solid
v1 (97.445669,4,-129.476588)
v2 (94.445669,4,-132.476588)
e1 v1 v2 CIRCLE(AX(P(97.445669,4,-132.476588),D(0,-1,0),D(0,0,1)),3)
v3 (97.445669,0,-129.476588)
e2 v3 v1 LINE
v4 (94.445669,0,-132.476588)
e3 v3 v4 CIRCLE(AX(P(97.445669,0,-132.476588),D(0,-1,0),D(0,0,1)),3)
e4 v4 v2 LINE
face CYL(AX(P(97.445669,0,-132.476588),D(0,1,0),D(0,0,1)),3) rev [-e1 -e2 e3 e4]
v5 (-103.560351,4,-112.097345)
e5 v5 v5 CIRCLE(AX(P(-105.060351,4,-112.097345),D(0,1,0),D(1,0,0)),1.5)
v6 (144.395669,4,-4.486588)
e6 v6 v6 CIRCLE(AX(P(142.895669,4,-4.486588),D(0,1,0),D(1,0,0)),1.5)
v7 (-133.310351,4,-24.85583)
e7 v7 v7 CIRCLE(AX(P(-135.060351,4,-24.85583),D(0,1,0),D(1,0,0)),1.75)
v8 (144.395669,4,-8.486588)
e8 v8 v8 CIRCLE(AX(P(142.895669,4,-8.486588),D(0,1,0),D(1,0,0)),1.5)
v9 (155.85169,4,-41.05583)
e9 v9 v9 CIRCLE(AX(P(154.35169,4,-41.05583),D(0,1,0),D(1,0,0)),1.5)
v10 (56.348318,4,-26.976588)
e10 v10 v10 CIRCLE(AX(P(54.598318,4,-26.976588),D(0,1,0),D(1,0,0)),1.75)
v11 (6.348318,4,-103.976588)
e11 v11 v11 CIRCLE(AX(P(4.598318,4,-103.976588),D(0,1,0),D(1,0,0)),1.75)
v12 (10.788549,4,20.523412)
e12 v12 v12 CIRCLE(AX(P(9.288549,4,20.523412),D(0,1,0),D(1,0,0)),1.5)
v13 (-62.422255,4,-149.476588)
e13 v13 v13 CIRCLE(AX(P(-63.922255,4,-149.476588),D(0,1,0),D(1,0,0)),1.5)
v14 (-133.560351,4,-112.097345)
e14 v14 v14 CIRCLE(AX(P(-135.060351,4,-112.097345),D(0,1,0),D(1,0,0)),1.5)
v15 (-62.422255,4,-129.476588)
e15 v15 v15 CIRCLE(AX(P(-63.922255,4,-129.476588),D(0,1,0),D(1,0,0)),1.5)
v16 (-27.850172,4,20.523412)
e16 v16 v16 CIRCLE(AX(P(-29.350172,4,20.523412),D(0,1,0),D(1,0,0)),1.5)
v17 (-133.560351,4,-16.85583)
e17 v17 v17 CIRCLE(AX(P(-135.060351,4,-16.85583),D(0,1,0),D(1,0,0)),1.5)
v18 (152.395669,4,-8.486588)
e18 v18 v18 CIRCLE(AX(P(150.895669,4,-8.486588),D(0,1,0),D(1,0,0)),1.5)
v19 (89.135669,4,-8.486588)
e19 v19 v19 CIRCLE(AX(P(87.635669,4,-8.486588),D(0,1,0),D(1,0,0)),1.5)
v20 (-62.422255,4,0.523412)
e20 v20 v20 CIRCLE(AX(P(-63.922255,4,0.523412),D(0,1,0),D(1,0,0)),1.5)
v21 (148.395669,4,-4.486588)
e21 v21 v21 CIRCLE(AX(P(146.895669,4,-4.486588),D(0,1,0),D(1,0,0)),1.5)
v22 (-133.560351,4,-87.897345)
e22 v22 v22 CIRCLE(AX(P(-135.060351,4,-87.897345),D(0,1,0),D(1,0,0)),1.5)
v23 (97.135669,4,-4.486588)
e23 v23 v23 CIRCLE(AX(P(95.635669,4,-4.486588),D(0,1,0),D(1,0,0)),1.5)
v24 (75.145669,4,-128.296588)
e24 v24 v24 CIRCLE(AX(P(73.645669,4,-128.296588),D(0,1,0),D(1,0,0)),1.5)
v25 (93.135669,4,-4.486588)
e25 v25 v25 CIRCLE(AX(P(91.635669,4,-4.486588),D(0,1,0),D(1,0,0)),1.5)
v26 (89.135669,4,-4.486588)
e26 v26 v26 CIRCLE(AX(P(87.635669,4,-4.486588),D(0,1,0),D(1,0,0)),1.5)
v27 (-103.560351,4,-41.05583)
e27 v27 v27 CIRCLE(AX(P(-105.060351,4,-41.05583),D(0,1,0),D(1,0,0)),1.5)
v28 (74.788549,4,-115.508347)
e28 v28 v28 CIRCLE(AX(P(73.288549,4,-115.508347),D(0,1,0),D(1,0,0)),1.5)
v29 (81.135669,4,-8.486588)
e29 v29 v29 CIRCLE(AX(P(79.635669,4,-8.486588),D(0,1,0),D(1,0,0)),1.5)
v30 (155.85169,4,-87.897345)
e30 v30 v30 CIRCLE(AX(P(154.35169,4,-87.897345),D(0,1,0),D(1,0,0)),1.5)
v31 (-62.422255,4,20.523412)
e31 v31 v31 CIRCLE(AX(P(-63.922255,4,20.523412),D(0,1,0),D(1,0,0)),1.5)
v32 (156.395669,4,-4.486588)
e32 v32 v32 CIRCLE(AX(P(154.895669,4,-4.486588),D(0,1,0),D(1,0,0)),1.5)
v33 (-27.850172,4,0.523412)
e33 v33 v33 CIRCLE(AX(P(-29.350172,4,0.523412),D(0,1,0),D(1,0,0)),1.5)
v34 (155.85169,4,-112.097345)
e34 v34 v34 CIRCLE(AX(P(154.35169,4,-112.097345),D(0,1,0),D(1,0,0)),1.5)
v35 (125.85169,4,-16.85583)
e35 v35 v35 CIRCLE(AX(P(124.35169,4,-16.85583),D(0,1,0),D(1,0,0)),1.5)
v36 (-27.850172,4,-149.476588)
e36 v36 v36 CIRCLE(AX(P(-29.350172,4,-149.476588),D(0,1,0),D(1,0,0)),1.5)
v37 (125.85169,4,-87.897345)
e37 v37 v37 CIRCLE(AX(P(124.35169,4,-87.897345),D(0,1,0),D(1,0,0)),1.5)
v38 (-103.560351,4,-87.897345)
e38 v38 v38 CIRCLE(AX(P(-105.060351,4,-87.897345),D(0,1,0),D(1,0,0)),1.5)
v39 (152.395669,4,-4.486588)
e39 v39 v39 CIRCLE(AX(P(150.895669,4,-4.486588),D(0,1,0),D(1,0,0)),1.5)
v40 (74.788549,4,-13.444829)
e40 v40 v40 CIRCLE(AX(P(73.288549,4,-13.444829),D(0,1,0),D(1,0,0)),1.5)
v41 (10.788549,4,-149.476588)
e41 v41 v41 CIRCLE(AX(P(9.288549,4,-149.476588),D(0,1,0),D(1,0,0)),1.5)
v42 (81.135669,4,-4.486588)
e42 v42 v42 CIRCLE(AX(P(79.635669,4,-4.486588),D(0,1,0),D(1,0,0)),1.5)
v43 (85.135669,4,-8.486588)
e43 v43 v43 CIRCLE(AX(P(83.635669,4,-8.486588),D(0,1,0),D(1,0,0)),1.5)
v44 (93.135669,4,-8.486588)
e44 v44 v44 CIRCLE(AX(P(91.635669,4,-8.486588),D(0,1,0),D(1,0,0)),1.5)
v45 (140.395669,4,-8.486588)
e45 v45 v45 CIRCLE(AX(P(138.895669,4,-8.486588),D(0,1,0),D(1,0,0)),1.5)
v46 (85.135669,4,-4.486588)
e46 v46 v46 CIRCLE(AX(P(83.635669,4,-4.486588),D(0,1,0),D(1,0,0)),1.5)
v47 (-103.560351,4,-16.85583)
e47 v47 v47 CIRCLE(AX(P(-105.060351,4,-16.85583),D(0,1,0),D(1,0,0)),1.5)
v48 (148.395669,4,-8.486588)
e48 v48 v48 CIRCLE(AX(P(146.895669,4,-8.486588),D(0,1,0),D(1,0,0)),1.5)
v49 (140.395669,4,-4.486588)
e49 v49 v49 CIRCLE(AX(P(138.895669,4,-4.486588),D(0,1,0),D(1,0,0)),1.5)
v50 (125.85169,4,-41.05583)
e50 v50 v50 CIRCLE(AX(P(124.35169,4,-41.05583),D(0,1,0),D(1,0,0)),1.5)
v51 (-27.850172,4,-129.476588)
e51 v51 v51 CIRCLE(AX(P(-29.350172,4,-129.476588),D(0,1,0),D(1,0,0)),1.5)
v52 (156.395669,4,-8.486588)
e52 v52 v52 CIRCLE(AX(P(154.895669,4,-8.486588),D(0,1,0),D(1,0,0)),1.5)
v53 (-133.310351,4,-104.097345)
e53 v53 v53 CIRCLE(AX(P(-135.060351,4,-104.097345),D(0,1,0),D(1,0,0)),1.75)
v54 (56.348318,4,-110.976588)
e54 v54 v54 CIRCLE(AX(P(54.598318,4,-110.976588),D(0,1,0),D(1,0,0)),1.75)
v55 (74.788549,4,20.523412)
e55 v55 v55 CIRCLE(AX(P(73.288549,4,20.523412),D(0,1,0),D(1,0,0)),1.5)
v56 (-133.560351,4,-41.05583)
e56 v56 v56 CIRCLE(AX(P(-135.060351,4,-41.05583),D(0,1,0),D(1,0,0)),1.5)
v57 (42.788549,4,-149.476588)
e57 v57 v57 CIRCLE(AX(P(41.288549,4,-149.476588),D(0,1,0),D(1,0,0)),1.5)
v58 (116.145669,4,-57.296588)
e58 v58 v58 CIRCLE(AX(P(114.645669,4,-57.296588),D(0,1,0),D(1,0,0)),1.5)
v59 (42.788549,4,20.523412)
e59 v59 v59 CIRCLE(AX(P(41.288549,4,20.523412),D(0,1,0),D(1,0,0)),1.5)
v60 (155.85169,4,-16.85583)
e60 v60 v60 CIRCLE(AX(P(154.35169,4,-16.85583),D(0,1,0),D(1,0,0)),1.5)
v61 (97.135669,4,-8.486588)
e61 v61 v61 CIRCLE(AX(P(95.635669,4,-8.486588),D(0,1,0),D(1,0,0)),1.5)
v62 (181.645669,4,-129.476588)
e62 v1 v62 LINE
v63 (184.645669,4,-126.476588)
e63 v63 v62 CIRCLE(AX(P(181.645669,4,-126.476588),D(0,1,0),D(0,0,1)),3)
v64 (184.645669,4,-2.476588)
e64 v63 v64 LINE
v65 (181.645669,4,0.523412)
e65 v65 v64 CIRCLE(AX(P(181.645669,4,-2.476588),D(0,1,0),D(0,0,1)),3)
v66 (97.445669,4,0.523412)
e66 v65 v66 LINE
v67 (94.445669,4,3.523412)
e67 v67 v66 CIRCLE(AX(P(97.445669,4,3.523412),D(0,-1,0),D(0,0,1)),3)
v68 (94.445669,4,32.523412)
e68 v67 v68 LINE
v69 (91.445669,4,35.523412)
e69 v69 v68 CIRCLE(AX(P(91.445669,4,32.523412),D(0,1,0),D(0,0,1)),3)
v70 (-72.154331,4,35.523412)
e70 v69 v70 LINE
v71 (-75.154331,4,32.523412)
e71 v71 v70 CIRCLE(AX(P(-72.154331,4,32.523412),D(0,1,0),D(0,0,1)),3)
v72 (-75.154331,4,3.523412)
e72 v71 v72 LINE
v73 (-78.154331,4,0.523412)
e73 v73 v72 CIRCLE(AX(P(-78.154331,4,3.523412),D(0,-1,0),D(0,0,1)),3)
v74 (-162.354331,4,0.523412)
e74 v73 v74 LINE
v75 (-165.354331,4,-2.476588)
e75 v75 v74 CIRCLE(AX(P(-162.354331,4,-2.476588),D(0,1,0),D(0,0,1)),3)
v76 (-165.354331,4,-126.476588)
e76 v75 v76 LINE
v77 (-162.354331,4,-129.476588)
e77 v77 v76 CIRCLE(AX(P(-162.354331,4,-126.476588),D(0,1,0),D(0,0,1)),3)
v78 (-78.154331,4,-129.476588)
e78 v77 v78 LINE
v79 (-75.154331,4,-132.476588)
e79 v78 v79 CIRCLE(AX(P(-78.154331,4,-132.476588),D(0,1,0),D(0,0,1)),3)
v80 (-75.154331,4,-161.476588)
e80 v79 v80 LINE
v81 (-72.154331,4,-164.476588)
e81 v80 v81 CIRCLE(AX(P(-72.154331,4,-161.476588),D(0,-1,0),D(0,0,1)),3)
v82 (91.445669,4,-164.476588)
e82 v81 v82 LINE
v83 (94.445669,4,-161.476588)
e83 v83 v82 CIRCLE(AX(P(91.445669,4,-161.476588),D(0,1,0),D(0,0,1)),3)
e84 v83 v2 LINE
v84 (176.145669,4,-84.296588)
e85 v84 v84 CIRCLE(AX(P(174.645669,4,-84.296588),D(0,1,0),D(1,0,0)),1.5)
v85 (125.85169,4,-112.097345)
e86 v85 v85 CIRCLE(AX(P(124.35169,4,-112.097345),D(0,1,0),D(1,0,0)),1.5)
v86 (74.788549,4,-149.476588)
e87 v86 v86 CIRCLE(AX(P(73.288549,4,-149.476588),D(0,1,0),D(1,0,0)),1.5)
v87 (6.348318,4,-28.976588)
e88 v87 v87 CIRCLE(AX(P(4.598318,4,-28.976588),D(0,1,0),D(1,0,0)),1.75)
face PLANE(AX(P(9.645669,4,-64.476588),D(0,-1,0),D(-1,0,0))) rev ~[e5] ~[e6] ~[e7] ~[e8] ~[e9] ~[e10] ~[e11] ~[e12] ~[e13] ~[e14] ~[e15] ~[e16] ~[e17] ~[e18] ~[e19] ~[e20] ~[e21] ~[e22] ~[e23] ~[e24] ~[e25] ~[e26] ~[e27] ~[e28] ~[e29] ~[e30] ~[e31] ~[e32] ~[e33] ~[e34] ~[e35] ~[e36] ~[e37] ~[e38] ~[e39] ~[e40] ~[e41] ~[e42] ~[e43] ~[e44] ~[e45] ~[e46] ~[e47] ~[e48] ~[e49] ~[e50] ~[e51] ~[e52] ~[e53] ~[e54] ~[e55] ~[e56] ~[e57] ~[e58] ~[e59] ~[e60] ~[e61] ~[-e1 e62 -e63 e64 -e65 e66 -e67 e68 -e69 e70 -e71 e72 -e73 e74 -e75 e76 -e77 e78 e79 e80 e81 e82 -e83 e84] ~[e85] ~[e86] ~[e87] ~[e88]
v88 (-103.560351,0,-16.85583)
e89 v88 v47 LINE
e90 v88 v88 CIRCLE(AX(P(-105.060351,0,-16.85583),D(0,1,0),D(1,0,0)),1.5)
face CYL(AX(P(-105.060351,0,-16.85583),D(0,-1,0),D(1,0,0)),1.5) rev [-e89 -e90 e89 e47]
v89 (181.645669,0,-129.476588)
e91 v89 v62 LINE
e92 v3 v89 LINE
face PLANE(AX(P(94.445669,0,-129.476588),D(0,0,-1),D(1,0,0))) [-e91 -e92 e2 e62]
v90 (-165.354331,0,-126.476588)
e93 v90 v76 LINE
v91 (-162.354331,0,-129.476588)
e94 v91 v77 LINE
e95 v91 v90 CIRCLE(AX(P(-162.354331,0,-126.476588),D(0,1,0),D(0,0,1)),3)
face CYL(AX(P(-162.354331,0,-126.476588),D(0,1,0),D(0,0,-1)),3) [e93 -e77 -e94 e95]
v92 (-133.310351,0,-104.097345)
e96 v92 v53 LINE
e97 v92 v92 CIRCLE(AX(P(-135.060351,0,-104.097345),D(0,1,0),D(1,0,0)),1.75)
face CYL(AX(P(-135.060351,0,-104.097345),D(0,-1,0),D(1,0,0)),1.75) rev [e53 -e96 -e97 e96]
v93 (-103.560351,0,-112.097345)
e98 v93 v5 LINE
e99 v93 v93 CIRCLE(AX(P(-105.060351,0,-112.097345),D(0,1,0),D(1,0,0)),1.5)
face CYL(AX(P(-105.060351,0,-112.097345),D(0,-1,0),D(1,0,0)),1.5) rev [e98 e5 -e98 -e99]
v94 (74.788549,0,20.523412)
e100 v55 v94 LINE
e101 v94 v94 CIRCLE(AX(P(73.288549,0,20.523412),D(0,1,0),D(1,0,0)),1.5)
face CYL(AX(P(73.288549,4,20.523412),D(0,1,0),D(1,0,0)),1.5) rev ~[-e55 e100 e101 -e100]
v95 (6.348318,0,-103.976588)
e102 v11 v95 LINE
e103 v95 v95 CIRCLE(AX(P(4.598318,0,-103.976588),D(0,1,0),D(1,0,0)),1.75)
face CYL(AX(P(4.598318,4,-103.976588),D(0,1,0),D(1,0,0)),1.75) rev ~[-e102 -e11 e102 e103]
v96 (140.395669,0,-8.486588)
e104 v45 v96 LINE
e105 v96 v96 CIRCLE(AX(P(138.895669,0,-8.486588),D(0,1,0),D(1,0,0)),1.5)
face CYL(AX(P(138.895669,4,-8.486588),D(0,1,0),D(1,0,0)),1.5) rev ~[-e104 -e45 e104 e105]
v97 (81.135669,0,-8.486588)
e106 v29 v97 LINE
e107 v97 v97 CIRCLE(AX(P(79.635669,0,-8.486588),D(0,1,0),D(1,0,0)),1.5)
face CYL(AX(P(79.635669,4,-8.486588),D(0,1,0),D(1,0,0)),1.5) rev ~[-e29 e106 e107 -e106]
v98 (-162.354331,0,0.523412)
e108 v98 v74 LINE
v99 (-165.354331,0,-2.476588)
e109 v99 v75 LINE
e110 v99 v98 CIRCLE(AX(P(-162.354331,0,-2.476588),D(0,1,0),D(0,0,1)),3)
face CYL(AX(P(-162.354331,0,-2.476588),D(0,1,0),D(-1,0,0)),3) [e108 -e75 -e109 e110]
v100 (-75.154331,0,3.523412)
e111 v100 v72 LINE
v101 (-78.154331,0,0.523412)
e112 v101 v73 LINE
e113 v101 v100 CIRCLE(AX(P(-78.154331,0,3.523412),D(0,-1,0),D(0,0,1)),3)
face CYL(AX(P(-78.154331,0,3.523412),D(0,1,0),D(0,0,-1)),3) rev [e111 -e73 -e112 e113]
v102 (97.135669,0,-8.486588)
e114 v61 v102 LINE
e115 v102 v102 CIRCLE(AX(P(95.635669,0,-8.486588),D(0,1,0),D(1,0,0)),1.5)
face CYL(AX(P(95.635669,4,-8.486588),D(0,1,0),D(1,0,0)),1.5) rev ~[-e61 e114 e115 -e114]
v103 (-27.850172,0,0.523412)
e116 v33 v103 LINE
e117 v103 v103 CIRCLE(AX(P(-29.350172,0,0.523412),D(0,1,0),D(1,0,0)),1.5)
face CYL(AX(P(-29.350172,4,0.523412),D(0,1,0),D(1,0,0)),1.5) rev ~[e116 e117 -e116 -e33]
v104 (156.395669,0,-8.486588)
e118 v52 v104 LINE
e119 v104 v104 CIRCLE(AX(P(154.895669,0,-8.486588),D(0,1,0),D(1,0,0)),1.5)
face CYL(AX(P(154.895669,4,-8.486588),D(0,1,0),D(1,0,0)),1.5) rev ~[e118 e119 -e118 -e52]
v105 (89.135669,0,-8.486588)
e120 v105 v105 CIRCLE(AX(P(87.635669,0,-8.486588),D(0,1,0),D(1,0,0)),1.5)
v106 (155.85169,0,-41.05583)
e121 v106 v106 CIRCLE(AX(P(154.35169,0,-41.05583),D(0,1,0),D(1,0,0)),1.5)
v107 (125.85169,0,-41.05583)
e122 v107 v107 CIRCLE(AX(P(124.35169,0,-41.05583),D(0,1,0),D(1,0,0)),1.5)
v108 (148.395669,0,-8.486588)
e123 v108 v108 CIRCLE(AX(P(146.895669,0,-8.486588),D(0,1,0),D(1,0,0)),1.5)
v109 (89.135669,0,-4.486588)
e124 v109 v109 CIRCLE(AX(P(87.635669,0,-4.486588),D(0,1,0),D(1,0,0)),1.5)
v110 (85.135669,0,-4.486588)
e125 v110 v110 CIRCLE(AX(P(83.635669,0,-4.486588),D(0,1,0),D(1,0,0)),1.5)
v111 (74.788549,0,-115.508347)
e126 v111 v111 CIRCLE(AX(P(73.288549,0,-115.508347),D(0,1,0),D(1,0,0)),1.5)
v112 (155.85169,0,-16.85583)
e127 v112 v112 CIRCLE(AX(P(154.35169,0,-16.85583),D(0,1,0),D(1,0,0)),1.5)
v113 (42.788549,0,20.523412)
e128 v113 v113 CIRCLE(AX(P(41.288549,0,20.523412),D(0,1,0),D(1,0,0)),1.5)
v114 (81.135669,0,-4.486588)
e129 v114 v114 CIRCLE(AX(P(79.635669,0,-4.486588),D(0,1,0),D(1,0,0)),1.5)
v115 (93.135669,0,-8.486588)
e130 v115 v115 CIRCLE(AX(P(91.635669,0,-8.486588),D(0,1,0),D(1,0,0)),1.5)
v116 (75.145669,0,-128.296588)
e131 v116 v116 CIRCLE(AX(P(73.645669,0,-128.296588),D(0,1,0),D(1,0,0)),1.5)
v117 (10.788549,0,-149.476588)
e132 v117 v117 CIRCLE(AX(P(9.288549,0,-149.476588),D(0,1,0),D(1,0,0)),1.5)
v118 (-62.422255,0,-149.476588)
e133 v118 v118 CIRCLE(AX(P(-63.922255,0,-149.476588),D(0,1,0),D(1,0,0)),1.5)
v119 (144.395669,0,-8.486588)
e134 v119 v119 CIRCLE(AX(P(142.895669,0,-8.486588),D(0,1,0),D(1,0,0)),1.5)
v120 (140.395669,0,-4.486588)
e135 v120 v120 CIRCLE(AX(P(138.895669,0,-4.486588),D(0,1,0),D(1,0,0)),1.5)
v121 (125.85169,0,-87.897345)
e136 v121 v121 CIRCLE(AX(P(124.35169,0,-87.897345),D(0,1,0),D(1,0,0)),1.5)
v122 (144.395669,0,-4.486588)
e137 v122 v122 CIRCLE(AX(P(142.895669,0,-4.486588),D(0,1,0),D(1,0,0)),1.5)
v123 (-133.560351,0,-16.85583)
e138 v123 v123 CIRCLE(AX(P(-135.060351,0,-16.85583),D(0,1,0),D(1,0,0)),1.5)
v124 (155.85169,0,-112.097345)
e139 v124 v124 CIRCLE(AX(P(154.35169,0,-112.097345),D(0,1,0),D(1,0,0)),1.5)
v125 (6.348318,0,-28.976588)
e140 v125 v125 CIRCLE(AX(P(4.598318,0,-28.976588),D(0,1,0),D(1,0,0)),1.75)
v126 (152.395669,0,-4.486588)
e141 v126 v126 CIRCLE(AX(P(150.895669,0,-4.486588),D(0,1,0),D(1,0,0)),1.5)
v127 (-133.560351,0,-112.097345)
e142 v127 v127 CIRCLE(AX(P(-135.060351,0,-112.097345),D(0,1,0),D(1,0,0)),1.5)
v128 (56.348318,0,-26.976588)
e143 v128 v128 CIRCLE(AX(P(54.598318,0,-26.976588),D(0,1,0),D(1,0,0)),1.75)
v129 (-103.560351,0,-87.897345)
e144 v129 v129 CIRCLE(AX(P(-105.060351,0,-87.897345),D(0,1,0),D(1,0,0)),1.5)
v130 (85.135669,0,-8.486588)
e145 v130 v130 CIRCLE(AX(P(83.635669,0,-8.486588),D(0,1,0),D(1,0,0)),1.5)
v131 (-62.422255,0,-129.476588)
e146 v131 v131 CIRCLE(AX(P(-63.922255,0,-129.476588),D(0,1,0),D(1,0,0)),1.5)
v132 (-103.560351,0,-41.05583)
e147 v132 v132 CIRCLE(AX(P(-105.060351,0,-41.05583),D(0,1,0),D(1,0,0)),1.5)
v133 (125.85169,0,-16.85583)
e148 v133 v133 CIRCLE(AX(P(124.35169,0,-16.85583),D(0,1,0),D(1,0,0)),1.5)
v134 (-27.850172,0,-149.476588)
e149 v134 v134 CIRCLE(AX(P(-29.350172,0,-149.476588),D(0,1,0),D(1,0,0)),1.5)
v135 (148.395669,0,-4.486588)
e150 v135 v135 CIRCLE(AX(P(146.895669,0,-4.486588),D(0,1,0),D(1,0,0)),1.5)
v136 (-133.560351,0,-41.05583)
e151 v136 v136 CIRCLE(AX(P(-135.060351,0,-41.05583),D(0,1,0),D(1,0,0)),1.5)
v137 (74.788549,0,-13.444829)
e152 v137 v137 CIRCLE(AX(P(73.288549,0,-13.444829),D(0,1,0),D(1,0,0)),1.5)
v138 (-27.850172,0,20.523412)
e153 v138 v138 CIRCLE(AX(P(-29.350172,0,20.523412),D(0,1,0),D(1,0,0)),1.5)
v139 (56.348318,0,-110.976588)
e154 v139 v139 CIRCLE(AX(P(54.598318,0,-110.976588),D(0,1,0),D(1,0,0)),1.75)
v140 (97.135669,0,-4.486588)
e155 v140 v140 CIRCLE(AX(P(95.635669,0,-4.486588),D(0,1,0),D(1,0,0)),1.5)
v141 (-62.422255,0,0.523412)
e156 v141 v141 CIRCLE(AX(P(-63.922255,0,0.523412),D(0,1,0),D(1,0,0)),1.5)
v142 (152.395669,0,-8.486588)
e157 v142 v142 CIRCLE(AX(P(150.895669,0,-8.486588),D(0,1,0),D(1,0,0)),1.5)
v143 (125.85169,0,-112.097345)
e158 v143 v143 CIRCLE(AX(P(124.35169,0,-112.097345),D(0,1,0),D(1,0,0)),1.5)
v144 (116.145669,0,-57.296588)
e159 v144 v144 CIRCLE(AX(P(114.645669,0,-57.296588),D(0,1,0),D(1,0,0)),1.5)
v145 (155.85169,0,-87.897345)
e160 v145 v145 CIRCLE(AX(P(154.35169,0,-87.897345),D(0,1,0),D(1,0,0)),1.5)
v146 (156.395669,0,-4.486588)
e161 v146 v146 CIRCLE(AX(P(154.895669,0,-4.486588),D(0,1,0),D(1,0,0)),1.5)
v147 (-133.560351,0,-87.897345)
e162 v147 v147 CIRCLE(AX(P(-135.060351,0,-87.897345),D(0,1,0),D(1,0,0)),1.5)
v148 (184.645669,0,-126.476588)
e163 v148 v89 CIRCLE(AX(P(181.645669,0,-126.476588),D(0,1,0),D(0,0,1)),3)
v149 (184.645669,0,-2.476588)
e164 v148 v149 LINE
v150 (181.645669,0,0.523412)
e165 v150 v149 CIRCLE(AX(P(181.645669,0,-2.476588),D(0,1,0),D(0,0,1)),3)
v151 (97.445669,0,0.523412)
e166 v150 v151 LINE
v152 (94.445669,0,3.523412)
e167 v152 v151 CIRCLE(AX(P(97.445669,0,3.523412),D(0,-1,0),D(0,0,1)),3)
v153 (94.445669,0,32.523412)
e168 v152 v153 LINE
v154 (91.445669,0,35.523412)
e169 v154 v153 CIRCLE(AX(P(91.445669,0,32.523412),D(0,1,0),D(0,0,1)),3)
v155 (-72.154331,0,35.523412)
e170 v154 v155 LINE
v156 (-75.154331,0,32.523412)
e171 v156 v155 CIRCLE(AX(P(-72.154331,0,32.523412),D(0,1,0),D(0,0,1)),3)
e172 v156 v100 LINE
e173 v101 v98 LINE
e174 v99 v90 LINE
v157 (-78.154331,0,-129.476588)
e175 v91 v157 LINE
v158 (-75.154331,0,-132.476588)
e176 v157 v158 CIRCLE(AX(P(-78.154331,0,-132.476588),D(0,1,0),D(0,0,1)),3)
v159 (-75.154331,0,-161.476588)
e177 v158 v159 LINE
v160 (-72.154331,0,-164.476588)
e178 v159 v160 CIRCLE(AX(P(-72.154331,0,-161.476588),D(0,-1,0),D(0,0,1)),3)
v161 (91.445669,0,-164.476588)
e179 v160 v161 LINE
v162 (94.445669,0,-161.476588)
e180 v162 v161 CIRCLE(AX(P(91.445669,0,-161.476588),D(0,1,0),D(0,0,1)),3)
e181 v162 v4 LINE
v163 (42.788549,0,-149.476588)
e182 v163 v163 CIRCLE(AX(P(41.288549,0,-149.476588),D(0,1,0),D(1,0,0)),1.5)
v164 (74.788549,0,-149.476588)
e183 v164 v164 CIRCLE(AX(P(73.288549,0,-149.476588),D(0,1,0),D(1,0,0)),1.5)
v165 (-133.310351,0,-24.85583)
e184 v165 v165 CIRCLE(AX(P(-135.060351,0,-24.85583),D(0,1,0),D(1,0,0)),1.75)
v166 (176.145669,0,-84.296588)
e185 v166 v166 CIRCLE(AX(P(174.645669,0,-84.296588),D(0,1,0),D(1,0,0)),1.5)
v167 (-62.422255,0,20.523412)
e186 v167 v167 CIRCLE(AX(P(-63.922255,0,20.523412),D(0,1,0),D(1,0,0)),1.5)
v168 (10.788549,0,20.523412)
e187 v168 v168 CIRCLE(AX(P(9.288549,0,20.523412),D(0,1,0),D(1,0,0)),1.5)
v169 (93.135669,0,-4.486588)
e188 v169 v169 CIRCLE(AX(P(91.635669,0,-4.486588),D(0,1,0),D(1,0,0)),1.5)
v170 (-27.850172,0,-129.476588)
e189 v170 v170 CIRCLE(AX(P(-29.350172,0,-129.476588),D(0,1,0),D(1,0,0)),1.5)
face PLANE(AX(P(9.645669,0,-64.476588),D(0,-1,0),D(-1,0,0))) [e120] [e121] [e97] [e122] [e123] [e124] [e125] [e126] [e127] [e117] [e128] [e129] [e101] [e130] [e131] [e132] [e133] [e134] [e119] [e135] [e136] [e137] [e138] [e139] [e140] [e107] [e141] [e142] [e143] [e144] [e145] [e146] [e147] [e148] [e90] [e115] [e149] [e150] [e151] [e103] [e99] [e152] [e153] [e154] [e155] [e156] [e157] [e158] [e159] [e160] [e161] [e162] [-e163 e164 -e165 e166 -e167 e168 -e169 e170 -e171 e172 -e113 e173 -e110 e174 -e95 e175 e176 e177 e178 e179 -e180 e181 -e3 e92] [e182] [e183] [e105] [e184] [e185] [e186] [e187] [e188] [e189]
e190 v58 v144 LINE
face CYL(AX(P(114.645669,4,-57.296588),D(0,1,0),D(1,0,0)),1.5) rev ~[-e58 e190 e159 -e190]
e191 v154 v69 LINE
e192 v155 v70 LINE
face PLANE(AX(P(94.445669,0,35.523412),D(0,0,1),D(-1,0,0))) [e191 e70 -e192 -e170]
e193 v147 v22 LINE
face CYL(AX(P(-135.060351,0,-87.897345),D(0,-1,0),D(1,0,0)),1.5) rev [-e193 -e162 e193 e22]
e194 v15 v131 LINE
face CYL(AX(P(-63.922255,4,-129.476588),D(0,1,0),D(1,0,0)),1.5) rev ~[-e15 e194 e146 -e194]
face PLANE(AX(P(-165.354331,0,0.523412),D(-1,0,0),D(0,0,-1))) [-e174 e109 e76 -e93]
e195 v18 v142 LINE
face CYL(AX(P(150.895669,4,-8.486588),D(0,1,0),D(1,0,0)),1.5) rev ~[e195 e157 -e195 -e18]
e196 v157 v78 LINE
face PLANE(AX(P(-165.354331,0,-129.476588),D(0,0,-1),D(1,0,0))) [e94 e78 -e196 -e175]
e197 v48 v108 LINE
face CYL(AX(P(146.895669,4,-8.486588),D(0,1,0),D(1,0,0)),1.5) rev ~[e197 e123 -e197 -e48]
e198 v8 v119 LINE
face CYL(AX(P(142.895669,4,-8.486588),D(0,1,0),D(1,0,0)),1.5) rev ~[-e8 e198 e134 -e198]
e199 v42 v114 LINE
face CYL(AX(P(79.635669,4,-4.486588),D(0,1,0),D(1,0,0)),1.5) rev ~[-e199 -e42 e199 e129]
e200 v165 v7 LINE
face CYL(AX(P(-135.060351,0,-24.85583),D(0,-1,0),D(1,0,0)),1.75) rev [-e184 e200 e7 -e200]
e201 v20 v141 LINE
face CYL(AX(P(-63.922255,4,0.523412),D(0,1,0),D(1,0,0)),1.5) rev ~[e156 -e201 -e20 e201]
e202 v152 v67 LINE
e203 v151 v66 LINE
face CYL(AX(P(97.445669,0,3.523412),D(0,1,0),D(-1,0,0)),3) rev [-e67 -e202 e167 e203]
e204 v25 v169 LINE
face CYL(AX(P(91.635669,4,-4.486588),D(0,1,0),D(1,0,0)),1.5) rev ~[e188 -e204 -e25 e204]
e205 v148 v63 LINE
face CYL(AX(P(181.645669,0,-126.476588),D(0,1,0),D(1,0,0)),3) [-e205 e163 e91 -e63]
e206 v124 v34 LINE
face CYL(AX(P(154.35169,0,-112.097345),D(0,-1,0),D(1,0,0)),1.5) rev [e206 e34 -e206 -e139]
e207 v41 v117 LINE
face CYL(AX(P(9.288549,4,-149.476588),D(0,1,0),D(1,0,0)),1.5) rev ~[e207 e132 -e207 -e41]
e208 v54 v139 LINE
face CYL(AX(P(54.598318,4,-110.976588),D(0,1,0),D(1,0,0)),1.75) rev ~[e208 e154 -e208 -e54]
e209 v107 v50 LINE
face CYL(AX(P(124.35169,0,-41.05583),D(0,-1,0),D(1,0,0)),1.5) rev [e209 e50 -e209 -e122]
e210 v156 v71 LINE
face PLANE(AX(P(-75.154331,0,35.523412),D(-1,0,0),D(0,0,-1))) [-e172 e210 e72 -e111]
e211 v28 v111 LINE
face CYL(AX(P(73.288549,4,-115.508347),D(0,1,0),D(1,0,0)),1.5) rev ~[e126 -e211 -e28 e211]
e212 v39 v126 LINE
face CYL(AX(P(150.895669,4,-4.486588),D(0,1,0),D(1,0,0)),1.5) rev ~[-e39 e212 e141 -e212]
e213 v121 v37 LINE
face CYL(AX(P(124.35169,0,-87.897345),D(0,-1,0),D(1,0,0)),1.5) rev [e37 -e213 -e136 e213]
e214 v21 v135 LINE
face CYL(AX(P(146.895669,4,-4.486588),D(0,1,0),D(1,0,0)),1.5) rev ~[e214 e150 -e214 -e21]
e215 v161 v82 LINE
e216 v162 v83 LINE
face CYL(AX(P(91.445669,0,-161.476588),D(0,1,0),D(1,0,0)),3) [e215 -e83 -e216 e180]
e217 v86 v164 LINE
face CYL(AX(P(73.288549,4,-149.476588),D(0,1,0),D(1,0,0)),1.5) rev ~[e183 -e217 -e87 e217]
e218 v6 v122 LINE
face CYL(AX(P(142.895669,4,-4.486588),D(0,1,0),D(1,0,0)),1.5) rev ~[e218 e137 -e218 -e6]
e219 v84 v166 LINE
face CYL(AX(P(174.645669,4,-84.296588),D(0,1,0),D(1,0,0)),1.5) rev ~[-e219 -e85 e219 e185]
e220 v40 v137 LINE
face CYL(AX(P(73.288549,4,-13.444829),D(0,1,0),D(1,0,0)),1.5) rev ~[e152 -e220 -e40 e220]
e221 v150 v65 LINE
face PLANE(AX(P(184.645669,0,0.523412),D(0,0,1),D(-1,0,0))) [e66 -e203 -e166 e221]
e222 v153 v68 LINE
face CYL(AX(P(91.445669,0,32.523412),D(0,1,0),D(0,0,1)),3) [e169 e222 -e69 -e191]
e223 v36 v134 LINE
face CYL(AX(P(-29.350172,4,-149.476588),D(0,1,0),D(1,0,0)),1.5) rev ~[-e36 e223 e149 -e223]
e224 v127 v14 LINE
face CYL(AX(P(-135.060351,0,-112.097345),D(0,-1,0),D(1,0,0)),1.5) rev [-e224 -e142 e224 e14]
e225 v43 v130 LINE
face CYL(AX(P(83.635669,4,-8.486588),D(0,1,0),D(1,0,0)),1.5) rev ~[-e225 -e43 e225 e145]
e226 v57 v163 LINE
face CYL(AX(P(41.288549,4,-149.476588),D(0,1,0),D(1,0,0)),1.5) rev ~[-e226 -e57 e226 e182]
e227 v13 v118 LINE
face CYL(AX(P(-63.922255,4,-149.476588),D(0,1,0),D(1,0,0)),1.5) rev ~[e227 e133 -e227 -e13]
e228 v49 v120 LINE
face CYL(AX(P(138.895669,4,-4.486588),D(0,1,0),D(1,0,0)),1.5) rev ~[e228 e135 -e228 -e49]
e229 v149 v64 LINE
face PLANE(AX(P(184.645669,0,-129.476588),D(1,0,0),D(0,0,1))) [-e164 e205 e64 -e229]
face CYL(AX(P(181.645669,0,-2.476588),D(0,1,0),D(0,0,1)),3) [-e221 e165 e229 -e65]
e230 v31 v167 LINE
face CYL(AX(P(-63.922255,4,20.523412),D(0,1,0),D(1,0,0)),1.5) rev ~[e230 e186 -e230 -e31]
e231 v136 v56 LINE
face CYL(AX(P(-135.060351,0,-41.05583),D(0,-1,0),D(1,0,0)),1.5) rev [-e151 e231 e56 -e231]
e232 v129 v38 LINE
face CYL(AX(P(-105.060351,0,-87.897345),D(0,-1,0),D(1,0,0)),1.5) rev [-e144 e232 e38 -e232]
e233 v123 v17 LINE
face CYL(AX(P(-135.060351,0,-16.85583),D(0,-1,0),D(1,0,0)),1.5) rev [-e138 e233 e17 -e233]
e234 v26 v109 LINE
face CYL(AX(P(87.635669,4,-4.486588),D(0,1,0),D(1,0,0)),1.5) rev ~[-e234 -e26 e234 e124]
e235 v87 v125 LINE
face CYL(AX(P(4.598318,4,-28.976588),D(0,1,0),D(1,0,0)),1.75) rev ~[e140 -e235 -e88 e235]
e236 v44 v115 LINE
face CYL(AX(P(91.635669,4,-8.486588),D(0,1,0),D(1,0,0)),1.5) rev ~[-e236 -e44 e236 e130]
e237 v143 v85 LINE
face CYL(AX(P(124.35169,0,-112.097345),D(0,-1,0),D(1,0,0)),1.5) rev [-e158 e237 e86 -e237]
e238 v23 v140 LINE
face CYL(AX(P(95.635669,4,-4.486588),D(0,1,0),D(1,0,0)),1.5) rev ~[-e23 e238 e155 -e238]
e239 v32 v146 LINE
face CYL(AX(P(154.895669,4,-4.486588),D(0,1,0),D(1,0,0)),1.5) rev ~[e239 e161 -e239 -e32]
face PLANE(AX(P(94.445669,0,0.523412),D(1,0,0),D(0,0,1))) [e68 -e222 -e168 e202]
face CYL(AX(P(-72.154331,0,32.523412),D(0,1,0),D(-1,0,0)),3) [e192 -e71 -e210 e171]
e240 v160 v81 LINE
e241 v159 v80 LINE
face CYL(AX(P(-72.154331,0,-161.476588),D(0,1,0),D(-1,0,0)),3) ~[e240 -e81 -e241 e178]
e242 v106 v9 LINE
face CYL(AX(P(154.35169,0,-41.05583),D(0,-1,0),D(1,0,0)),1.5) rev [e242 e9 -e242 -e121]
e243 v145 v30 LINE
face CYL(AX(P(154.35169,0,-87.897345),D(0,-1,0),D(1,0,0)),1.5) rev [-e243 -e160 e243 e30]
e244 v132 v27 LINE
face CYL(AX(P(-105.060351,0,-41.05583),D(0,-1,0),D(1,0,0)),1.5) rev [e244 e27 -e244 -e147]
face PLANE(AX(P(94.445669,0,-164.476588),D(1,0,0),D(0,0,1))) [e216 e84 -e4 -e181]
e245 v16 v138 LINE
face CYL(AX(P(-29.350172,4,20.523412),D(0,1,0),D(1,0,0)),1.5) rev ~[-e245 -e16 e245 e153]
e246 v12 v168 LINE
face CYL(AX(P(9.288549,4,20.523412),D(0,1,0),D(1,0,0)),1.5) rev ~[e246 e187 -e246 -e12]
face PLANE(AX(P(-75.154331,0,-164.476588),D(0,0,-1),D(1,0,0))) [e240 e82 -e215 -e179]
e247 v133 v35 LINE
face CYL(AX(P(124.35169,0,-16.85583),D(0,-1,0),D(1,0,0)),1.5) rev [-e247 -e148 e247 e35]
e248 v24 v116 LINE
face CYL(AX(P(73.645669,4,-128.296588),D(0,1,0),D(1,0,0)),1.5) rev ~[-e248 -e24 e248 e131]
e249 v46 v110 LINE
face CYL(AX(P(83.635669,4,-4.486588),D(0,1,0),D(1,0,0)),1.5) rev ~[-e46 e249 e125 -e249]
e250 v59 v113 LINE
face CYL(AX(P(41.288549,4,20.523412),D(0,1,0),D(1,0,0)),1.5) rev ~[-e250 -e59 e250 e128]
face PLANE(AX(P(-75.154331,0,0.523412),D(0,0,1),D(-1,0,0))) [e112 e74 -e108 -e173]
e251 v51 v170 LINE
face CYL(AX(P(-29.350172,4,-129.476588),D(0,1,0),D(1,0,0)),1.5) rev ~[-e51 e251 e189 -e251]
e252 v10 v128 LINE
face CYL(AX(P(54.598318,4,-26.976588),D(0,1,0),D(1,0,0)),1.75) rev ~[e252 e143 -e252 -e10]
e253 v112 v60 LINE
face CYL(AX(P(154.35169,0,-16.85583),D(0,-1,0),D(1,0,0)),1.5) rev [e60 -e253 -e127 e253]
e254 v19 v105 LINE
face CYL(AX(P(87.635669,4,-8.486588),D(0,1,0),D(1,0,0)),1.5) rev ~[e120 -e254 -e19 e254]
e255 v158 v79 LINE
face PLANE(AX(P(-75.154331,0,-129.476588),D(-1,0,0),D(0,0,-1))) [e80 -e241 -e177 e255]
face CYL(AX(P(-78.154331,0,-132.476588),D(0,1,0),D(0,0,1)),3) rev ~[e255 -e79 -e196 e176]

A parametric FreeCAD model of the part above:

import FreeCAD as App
import Part
import Sketcher

V = App.Vector


def edges_at(feature, points):
    """Names of the edges that pass closest to the given points."""
    edges = feature.Shape.Edges
    near = lambda p: min(range(len(edges)), key=lambda i: edges[i].distToShape(Part.Vertex(*p))[0])
    return sorted({f"Edge{near(p) + 1}" for p in points})


def add_polygon(sketch, points):
    """Adds a closed chain of lines whose ends are joined by coincident constraints."""
    first, n = sketch.GeometryCount, len(points)
    for a, b in zip(points, points[1:] + points[:1]):
        sketch.addGeometry(Part.LineSegment(App.Vector(*a, 0), App.Vector(*b, 0)), False)
    for i in range(n):
        sketch.addConstraint(Sketcher.Constraint("Coincident", first + i, 2, first + (i + 1) % n, 1))

doc = App.newDocument("Part")
params = doc.addObject("Spreadsheet::Sheet", "Params")
for row, (alias, value) in enumerate([
    ("sketch1_diameter", "3 mm"),
    ("sketch1_diameter2", "3.5 mm"),
    ("sketch1_height", "130 mm"),
    ("sketch1_height2", "35 mm"),
    ("sketch1_width", "90.2 mm"),
    ("pad1_length", "4 mm"),
    ("sketch2_diameter", "3 mm"),
    ("fillet_radius", "3 mm"),
    ("fillet2_radius", "3 mm"),
    ("fillet3_radius", "3 mm"),
    ("fillet4_radius", "3 mm"),
    ("fillet5_radius", "3 mm"),
    ("fillet6_radius", "3 mm"),
    ("fillet7_radius", "3 mm"),
    ("fillet8_radius", "3 mm"),
    ("fillet9_radius", "3 mm"),
    ("fillet10_radius", "3 mm"),
    ("fillet11_radius", "3 mm"),
    ("fillet12_radius", "3 mm"),
    ("sketch3_diameter", "3.5 mm"),
    ("sketch4_diameter", "3 mm"),
    ("sketch5_diameter", "3 mm"),
    ("pocket4_length", "10 mm"),
], start=1):
    params.set(f"A{row}", alias)
    params.set(f"B{row}", "=" + value)
    params.setAlias(f"B{row}", alias)

body = doc.addObject("PartDesign::Body", "Body")

# Sketch on XZ plane
sketch1 = doc.addObject("Sketcher::SketchObject", "Sketch")
body.addObject(sketch1)
sketch1.AttachmentSupport = (doc.XZ_Plane, [""])
sketch1.MapMode = "FlatFace"
add_polygon(sketch1, [(-165.4, -129.5), (-165.4, 0.5), (-75.2, 0.5), (-75.2, 35.5), (94.4, 35.5), (94.4, 0.5), (184.6, 0.5), (184.6, -129.5), (94.4, -129.5), (94.4, -164.5), (-75.2, -164.5), (-75.2, -129.5)])  # lines 0-11
sketch1.addGeometry(Part.Circle(V(154.4, -16.9, 0), V(0, 0, 1), 1.5), False)  # 12
sketch1.addGeometry(Part.Circle(V(124.4, -16.9, 0), V(0, 0, 1), 1.5), False)  # 13
sketch1.addGeometry(Part.Circle(V(154.4, -41.1, 0), V(0, 0, 1), 1.5), False)  # 14
sketch1.addGeometry(Part.Circle(V(124.4, -41.1, 0), V(0, 0, 1), 1.5), False)  # 15
sketch1.addGeometry(Part.Circle(V(-105.1, -16.9, 0), V(0, 0, 1), 1.5), False)  # 16
sketch1.addGeometry(Part.Circle(V(-135.1, -16.9, 0), V(0, 0, 1), 1.5), False)  # 17
sketch1.addGeometry(Part.Circle(V(-135.1, -24.9, 0), V(0, 0, 1), 1.8), False)  # 18
sketch1.addGeometry(Part.Circle(V(-105.1, -41.1, 0), V(0, 0, 1), 1.5), False)  # 19
sketch1.addGeometry(Part.Circle(V(-135.1, -41.1, 0), V(0, 0, 1), 1.5), False)  # 20
sketch1.addGeometry(Part.Circle(V(154.4, -87.9, 0), V(0, 0, 1), 1.5), False)  # 21
sketch1.addGeometry(Part.Circle(V(124.4, -87.9, 0), V(0, 0, 1), 1.5), False)  # 22
sketch1.addGeometry(Part.Circle(V(154.4, -112.1, 0), V(0, 0, 1), 1.5), False)  # 23
sketch1.addGeometry(Part.Circle(V(124.4, -112.1, 0), V(0, 0, 1), 1.5), False)  # 24
sketch1.addGeometry(Part.Circle(V(-105.1, -87.9, 0), V(0, 0, 1), 1.5), False)  # 25
sketch1.addGeometry(Part.Circle(V(-135.1, -87.9, 0), V(0, 0, 1), 1.5), False)  # 26
sketch1.addGeometry(Part.Circle(V(-135.1, -104.1, 0), V(0, 0, 1), 1.8), False)  # 27
sketch1.addGeometry(Part.Circle(V(-105.1, -112.1, 0), V(0, 0, 1), 1.5), False)  # 28
sketch1.addGeometry(Part.Circle(V(-135.1, -112.1, 0), V(0, 0, 1), 1.5), False)  # 29
sketch1.addConstraint([
    Sketcher.Constraint("Vertical", 0),
    Sketcher.Constraint("Horizontal", 1),
    Sketcher.Constraint("Vertical", 2),
    Sketcher.Constraint("Horizontal", 3),
    Sketcher.Constraint("Vertical", 4),
    Sketcher.Constraint("Horizontal", 5),
    Sketcher.Constraint("Vertical", 6),
    Sketcher.Constraint("Horizontal", 7),
    Sketcher.Constraint("Vertical", 8),
    Sketcher.Constraint("Horizontal", 9),
    Sketcher.Constraint("Vertical", 10),
    Sketcher.Constraint("Horizontal", 11),
    Sketcher.Constraint("Equal", 12, 13),
    Sketcher.Constraint("Equal", 13, 14),
    Sketcher.Constraint("Equal", 14, 15),
    Sketcher.Constraint("Equal", 15, 16),
    Sketcher.Constraint("Equal", 16, 17),
    Sketcher.Constraint("Equal", 17, 19),
    Sketcher.Constraint("Equal", 19, 20),
    Sketcher.Constraint("Equal", 20, 21),
    Sketcher.Constraint("Equal", 21, 22),
    Sketcher.Constraint("Equal", 22, 23),
    Sketcher.Constraint("Equal", 23, 24),
    Sketcher.Constraint("Equal", 24, 25),
    Sketcher.Constraint("Equal", 25, 26),
    Sketcher.Constraint("Equal", 18, 27),
    Sketcher.Constraint("Equal", 26, 28),
    Sketcher.Constraint("Equal", 28, 29),
    Sketcher.Constraint("Horizontal", 12, 3, 13, 3),
    Sketcher.Constraint("Horizontal", 14, 3, 15, 3),
    Sketcher.Constraint("Horizontal", 13, 3, 16, 3),
    Sketcher.Constraint("Horizontal", 16, 3, 17, 3),
    Sketcher.Constraint("Horizontal", 15, 3, 19, 3),
    Sketcher.Constraint("Horizontal", 19, 3, 20, 3),
    Sketcher.Constraint("Horizontal", 21, 3, 22, 3),
    Sketcher.Constraint("Horizontal", 23, 3, 24, 3),
    Sketcher.Constraint("Horizontal", 22, 3, 25, 3),
    Sketcher.Constraint("Horizontal", 25, 3, 26, 3),
    Sketcher.Constraint("Horizontal", 24, 3, 28, 3),
    Sketcher.Constraint("Horizontal", 28, 3, 29, 3),
    Sketcher.Constraint("Horizontal", 1, 2, 4, 2),
    Sketcher.Constraint("Horizontal", 7, 2, 10, 2),
    Sketcher.Constraint("Vertical", 12, 3, 14, 3),
    Sketcher.Constraint("Vertical", 13, 3, 15, 3),
    Sketcher.Constraint("Vertical", 17, 3, 18, 3),
    Sketcher.Constraint("Vertical", 16, 3, 19, 3),
    Sketcher.Constraint("Vertical", 18, 3, 20, 3),
    Sketcher.Constraint("Vertical", 14, 3, 21, 3),
    Sketcher.Constraint("Vertical", 15, 3, 22, 3),
    Sketcher.Constraint("Vertical", 21, 3, 23, 3),
    Sketcher.Constraint("Vertical", 22, 3, 24, 3),
    Sketcher.Constraint("Vertical", 19, 3, 25, 3),
    Sketcher.Constraint("Vertical", 20, 3, 26, 3),
    Sketcher.Constraint("Vertical", 26, 3, 27, 3),
    Sketcher.Constraint("Vertical", 25, 3, 28, 3),
    Sketcher.Constraint("Vertical", 27, 3, 29, 3),
    Sketcher.Constraint("Vertical", 4, 2, 7, 2),
    Sketcher.Constraint("Vertical", 2, 2, 9, 2),
    Sketcher.Constraint("Equal", 1, 5),
    Sketcher.Constraint("Equal", 4, 8),
    Sketcher.Constraint("Diameter", 12, 3.0),
    Sketcher.Constraint("Diameter", 18, 3.5),
    Sketcher.Constraint("DistanceY", 0, 1, 0, 2, 130.0),
    Sketcher.Constraint("DistanceY", 2, 1, 2, 2, 35.0),
    Sketcher.Constraint("DistanceX", 1, 1, 1, 2, 90.2),
    Sketcher.Constraint("DistanceX", 3, 1, 3, 2, 169.6),
    Sketcher.Constraint("DistanceX", 13, 3, 12, 3, 30.0),
    Sketcher.Constraint("DistanceX", 17, 3, 16, 3, 30.0),
    Sketcher.Constraint("DistanceY", 18, 3, 17, 3, 8.0),
    Sketcher.Constraint("DistanceY", 28, 3, 27, 3, 8.0),
    Sketcher.Constraint("DistanceY", 14, 3, 12, 3, 24.2),
    Sketcher.Constraint("DistanceY", 23, 3, 21, 3, 24.2),
    Sketcher.Constraint("DistanceX", -1, 1, 12, 3, 154.35169),
    Sketcher.Constraint("DistanceY", 12, 3, -1, 1, 16.85583),
    Sketcher.Constraint("DistanceX", 16, 3, -1, 1, 105.060351),
    Sketcher.Constraint("DistanceX", 0, 2, -1, 1, 165.354331),
    Sketcher.Constraint("DistanceY", 21, 3, -1, 1, 87.897345),
    Sketcher.Constraint("DistanceY", -1, 1, 0, 2, 0.523412),
])
sketch1.setExpression("Constraints[72]", "Params.sketch1_diameter")
sketch1.setExpression("Constraints[73]", "Params.sketch1_diameter2")
sketch1.setExpression("Constraints[74]", "Params.sketch1_height")
sketch1.setExpression("Constraints[75]", "Params.sketch1_height2")
sketch1.setExpression("Constraints[76]", "Params.sketch1_width")
pad1 = doc.addObject("PartDesign::Pad", "Pad")
body.addObject(pad1)
pad1.Profile = sketch1
pad1.setExpression("Length", "Params.pad1_length")
pad1.Reversed = True

# Sketch on XZ plane
sketch2 = doc.addObject("Sketcher::SketchObject", "Sketch001")
body.addObject(sketch2)
sketch2.AttachmentSupport = (doc.XZ_Plane, [""])
sketch2.MapMode = "FlatFace"
sketch2.AttachmentOffset = App.Placement(V(0, 0, -4), App.Rotation())
sketch2.addGeometry([
    Part.Circle(V(-29.4, -149.5, 0), V(0, 0, 1), 1.5),  # 0
    Part.Circle(V(-29.4, -129.5, 0), V(0, 0, 1), 1.5),  # 1
    Part.Circle(V(-63.9, -149.5, 0), V(0, 0, 1), 1.5),  # 2
    Part.Circle(V(-63.9, -129.5, 0), V(0, 0, 1), 1.5),  # 3
    Part.Circle(V(-29.4, 0.5, 0), V(0, 0, 1), 1.5),  # 4
    Part.Circle(V(-29.4, 20.5, 0), V(0, 0, 1), 1.5),  # 5
    Part.Circle(V(-63.9, 20.5, 0), V(0, 0, 1), 1.5),  # 6
    Part.Circle(V(-63.9, 0.5, 0), V(0, 0, 1), 1.5),  # 7
    Part.Circle(V(9.3, -149.5, 0), V(0, 0, 1), 1.5),  # 8
    Part.Circle(V(41.3, -149.5, 0), V(0, 0, 1), 1.5),  # 9
    Part.Circle(V(73.3, -149.5, 0), V(0, 0, 1), 1.5),  # 10
    Part.Circle(V(73.3, -115.5, 0), V(0, 0, 1), 1.5),  # 11
    Part.Circle(V(41.3, 20.5, 0), V(0, 0, 1), 1.5),  # 12
    Part.Circle(V(73.3, 20.5, 0), V(0, 0, 1), 1.5),  # 13
    Part.Circle(V(73.3, -13.4, 0), V(0, 0, 1), 1.5),  # 14
    Part.Circle(V(9.3, 20.5, 0), V(0, 0, 1), 1.5),  # 15
], False)
sketch2.addConstraint([
    Sketcher.Constraint("Equal", 0, 1),
    Sketcher.Constraint("Equal", 1, 2),
    Sketcher.Constraint("Equal", 2, 3),
    Sketcher.Constraint("Equal", 3, 4),
    Sketcher.Constraint("Equal", 4, 5),
    Sketcher.Constraint("Equal", 5, 6),
    Sketcher.Constraint("Equal", 6, 7),
    Sketcher.Constraint("Equal", 7, 8),
    Sketcher.Constraint("Equal", 8, 9),
    Sketcher.Constraint("Equal", 9, 10),
    Sketcher.Constraint("Equal", 10, 11),
    Sketcher.Constraint("Equal", 11, 12),
    Sketcher.Constraint("Equal", 12, 13),
    Sketcher.Constraint("Equal", 13, 14),
    Sketcher.Constraint("Equal", 14, 15),
    Sketcher.Constraint("Horizontal", 0, 3, 2, 3),
    Sketcher.Constraint("Horizontal", 1, 3, 3, 3),
    Sketcher.Constraint("Horizontal", 5, 3, 6, 3),
    Sketcher.Constraint("Horizontal", 4, 3, 7, 3),
    Sketcher.Constraint("Horizontal", 2, 3, 8, 3),
    Sketcher.Constraint("Horizontal", 8, 3, 9, 3),
    Sketcher.Constraint("Horizontal", 9, 3, 10, 3),
    Sketcher.Constraint("Horizontal", 6, 3, 12, 3),
    Sketcher.Constraint("Horizontal", 12, 3, 13, 3),
    Sketcher.Constraint("Horizontal", 13, 3, 15, 3),
    Sketcher.Constraint("Vertical", 0, 3, 1, 3),
    Sketcher.Constraint("Vertical", 2, 3, 3, 3),
    Sketcher.Constraint("Vertical", 1, 3, 4, 3),
    Sketcher.Constraint("Vertical", 4, 3, 5, 3),
    Sketcher.Constraint("Vertical", 3, 3, 6, 3),
    Sketcher.Constraint("Vertical", 6, 3, 7, 3),
    Sketcher.Constraint("Vertical", 10, 3, 11, 3),
    Sketcher.Constraint("Vertical", 9, 3, 12, 3),
    Sketcher.Constraint("Vertical", 11, 3, 13, 3),
    Sketcher.Constraint("Vertical", 13, 3, 14, 3),
    Sketcher.Constraint("Vertical", 8, 3, 15, 3),
    Sketcher.Constraint("Diameter", 0, 3.0),
    Sketcher.Constraint("DistanceY", 0, 3, 1, 3, 20.0),
    Sketcher.Constraint("DistanceY", 1, 3, 4, 3, 130.0),
    Sketcher.Constraint("DistanceY", 4, 3, 5, 3, 20.0),
    Sketcher.Constraint("DistanceX", 8, 3, 9, 3, 32.0),
    Sketcher.Constraint("DistanceX", 9, 3, 10, 3, 32.0),
    Sketcher.Constraint("DistanceX", -1, 1, 8, 3, 9.288549),
    Sketcher.Constraint("DistanceY", 14, 3, -1, 1, 13.444829),
    Sketcher.Constraint("DistanceX", 0, 3, 8, 3, 38.638722),
    Sketcher.Constraint("DistanceY", 10, 3, 11, 3, 33.968241),
    Sketcher.Constraint("DistanceY", 14, 3, 13, 3, 33.968241),
    Sketcher.Constraint("DistanceX", 2, 3, -1, 1, 63.922255),
])
sketch2.setExpression("Constraints[36]", "Params.sketch2_diameter")
pocket1 = doc.addObject("PartDesign::Pocket", "Pocket")
body.addObject(pocket1)
pocket1.Profile = sketch2
pocket1.Type = "ThroughAll"
pocket1.Reversed = True
doc.recompute()

fillet = doc.addObject("PartDesign::Fillet", "Fillet")
body.addObject(fillet)
fillet.Base = (pocket1, edges_at(pocket1, [(-75.154, 2, -164.477)]))
fillet.setExpression("Radius", "Params.fillet_radius")
doc.recompute()

fillet2 = doc.addObject("PartDesign::Fillet", "Fillet001")
body.addObject(fillet2)
fillet2.Base = (fillet, edges_at(fillet, [(-165.354, 2, -129.477)]))
fillet2.setExpression("Radius", "Params.fillet2_radius")
doc.recompute()

fillet3 = doc.addObject("PartDesign::Fillet", "Fillet002")
body.addObject(fillet3)
fillet3.Base = (fillet2, edges_at(fillet2, [(-75.154, 2, -129.477)]))
fillet3.setExpression("Radius", "Params.fillet3_radius")
doc.recompute()

fillet4 = doc.addObject("PartDesign::Fillet", "Fillet003")
body.addObject(fillet4)
fillet4.Base = (fillet3, edges_at(fillet3, [(-165.354, 2, 0.523)]))
fillet4.setExpression("Radius", "Params.fillet4_radius")
doc.recompute()

fillet5 = doc.addObject("PartDesign::Fillet", "Fillet004")
body.addObject(fillet5)
fillet5.Base = (fillet4, edges_at(fillet4, [(-75.154, 2, 0.523)]))
fillet5.setExpression("Radius", "Params.fillet5_radius")
doc.recompute()

fillet6 = doc.addObject("PartDesign::Fillet", "Fillet005")
body.addObject(fillet6)
fillet6.Base = (fillet5, edges_at(fillet5, [(-75.154, 2, 35.523)]))
fillet6.setExpression("Radius", "Params.fillet6_radius")
doc.recompute()

fillet7 = doc.addObject("PartDesign::Fillet", "Fillet006")
body.addObject(fillet7)
fillet7.Base = (fillet6, edges_at(fillet6, [(94.446, 2, 35.523)]))
fillet7.setExpression("Radius", "Params.fillet7_radius")
doc.recompute()

fillet8 = doc.addObject("PartDesign::Fillet", "Fillet007")
body.addObject(fillet8)
fillet8.Base = (fillet7, edges_at(fillet7, [(94.446, 2, 0.523)]))
fillet8.setExpression("Radius", "Params.fillet8_radius")
doc.recompute()

fillet9 = doc.addObject("PartDesign::Fillet", "Fillet008")
body.addObject(fillet9)
fillet9.Base = (fillet8, edges_at(fillet8, [(184.646, 2, 0.523)]))
fillet9.setExpression("Radius", "Params.fillet9_radius")
doc.recompute()

fillet10 = doc.addObject("PartDesign::Fillet", "Fillet009")
body.addObject(fillet10)
fillet10.Base = (fillet9, edges_at(fillet9, [(184.646, 2, -129.477)]))
fillet10.setExpression("Radius", "Params.fillet10_radius")
doc.recompute()

fillet11 = doc.addObject("PartDesign::Fillet", "Fillet010")
body.addObject(fillet11)
fillet11.Base = (fillet10, edges_at(fillet10, [(94.446, 2, -129.477)]))
fillet11.setExpression("Radius", "Params.fillet11_radius")
doc.recompute()

fillet12 = doc.addObject("PartDesign::Fillet", "Fillet011")
body.addObject(fillet12)
fillet12.Base = (fillet11, edges_at(fillet11, [(94.446, 2, -164.477)]))
fillet12.setExpression("Radius", "Params.fillet12_radius")

# Sketch on XZ plane
sketch3 = doc.addObject("Sketcher::SketchObject", "Sketch002")
body.addObject(sketch3)
sketch3.AttachmentSupport = (doc.XZ_Plane, [""])
sketch3.MapMode = "FlatFace"
sketch3.AttachmentOffset = App.Placement(V(0, 0, -4), App.Rotation())
sketch3.addGeometry([
    Part.Circle(V(54.6, -27, 0), V(0, 0, 1), 1.8),
    Part.Circle(V(54.6, -111, 0), V(0, 0, 1), 1.8),
    Part.Circle(V(4.6, -29, 0), V(0, 0, 1), 1.8),
    Part.Circle(V(4.6, -104, 0), V(0, 0, 1), 1.8),
], False)
sketch3.addConstraint([
    Sketcher.Constraint("Equal", 0, 1),
    Sketcher.Constraint("Equal", 1, 2),
    Sketcher.Constraint("Equal", 2, 3),
    Sketcher.Constraint("Vertical", 0, 3, 1, 3),
    Sketcher.Constraint("Vertical", 2, 3, 3, 3),
    Sketcher.Constraint("Diameter", 0, 3.5),
    Sketcher.Constraint("DistanceY", 1, 3, 0, 3, 84.0),
    Sketcher.Constraint("DistanceX", 2, 3, 0, 3, 50.0),
    Sketcher.Constraint("DistanceY", 2, 3, 0, 3, 2.0),
    Sketcher.Constraint("DistanceY", 1, 3, 3, 3, 7.0),
    Sketcher.Constraint("DistanceX", -1, 1, 0, 3, 54.598318),
    Sketcher.Constraint("DistanceY", 0, 3, -1, 1, 26.976588),
])
sketch3.setExpression("Constraints[5]", "Params.sketch3_diameter")
pocket2 = doc.addObject("PartDesign::Pocket", "Pocket001")
body.addObject(pocket2)
pocket2.Profile = sketch3
pocket2.Type = "ThroughAll"
pocket2.Reversed = True

# Sketch on XZ plane
sketch4 = doc.addObject("Sketcher::SketchObject", "Sketch003")
body.addObject(sketch4)
sketch4.AttachmentSupport = (doc.XZ_Plane, [""])
sketch4.MapMode = "FlatFace"
sketch4.AttachmentOffset = App.Placement(V(0, 0, -4), App.Rotation())
sketch4.addGeometry([
    Part.Circle(V(73.6, -128.3, 0), V(0, 0, 1), 1.5),
    Part.Circle(V(174.6, -84.3, 0), V(0, 0, 1), 1.5),
    Part.Circle(V(114.6, -57.3, 0), V(0, 0, 1), 1.5),
], False)
sketch4.addConstraint([
    Sketcher.Constraint("Equal", 0, 1),
    Sketcher.Constraint("Equal", 1, 2),
    Sketcher.Constraint("Diameter", 0, 3.0),
    Sketcher.Constraint("DistanceX", 0, 3, 1, 3, 101.0),
    Sketcher.Constraint("DistanceY", 0, 3, 1, 3, 44.0),
    Sketcher.Constraint("DistanceX", 2, 3, 1, 3, 60.0),
    Sketcher.Constraint("DistanceY", 1, 3, 2, 3, 27.0),
    Sketcher.Constraint("DistanceX", -1, 1, 0, 3, 73.645669),
    Sketcher.Constraint("DistanceY", 0, 3, -1, 1, 128.296588),
])
sketch4.setExpression("Constraints[2]", "Params.sketch4_diameter")
pocket3 = doc.addObject("PartDesign::Pocket", "Pocket002")
body.addObject(pocket3)
pocket3.Profile = sketch4
pocket3.Type = "ThroughAll"
pocket3.Reversed = True

# Sketch on XZ plane
sketch5 = doc.addObject("Sketcher::SketchObject", "Sketch004")
body.addObject(sketch5)
sketch5.AttachmentSupport = (doc.XZ_Plane, [""])
sketch5.MapMode = "FlatFace"
sketch5.AttachmentOffset = App.Placement(V(0, 0, -4), App.Rotation())
sketch5.addGeometry([
    Part.Circle(V(146.9, -8.5, 0), V(0, 0, 1), 1.5),  # 0
    Part.Circle(V(83.6, -8.5, 0), V(0, 0, 1), 1.5),  # 1
    Part.Circle(V(142.9, -8.5, 0), V(0, 0, 1), 1.5),  # 2
    Part.Circle(V(79.6, -8.5, 0), V(0, 0, 1), 1.5),  # 3
    Part.Circle(V(138.9, -8.5, 0), V(0, 0, 1), 1.5),  # 4
    Part.Circle(V(87.6, -8.5, 0), V(0, 0, 1), 1.5),  # 5
    Part.Circle(V(91.6, -8.5, 0), V(0, 0, 1), 1.5),  # 6
    Part.Circle(V(150.9, -8.5, 0), V(0, 0, 1), 1.5),  # 7
    Part.Circle(V(95.6, -8.5, 0), V(0, 0, 1), 1.5),  # 8
    Part.Circle(V(154.9, -8.5, 0), V(0, 0, 1), 1.5),  # 9
    Part.Circle(V(87.6, -4.5, 0), V(0, 0, 1), 1.5),  # 10
    Part.Circle(V(146.9, -4.5, 0), V(0, 0, 1), 1.5),  # 11
    Part.Circle(V(79.6, -4.5, 0), V(0, 0, 1), 1.5),  # 12
    Part.Circle(V(83.6, -4.5, 0), V(0, 0, 1), 1.5),  # 13
    Part.Circle(V(91.6, -4.5, 0), V(0, 0, 1), 1.5),  # 14
    Part.Circle(V(95.6, -4.5, 0), V(0, 0, 1), 1.5),  # 15
    Part.Circle(V(138.9, -4.5, 0), V(0, 0, 1), 1.5),  # 16
    Part.Circle(V(142.9, -4.5, 0), V(0, 0, 1), 1.5),  # 17
    Part.Circle(V(150.9, -4.5, 0), V(0, 0, 1), 1.5),  # 18
    Part.Circle(V(154.9, -4.5, 0), V(0, 0, 1), 1.5),  # 19
], False)
sketch5.addConstraint([
    Sketcher.Constraint("Equal", 0, 1),
    Sketcher.Constraint("Equal", 1, 2),
    Sketcher.Constraint("Equal", 2, 3),
    Sketcher.Constraint("Equal", 3, 4),
    Sketcher.Constraint("Equal", 4, 5),
    Sketcher.Constraint("Equal", 5, 6),
    Sketcher.Constraint("Equal", 6, 7),
    Sketcher.Constraint("Equal", 7, 8),
    Sketcher.Constraint("Equal", 8, 9),
    Sketcher.Constraint("Equal", 9, 10),
    Sketcher.Constraint("Equal", 10, 11),
    Sketcher.Constraint("Equal", 11, 12),
    Sketcher.Constraint("Equal", 12, 13),
    Sketcher.Constraint("Equal", 13, 14),
    Sketcher.Constraint("Equal", 14, 15),
    Sketcher.Constraint("Equal", 15, 16),
    Sketcher.Constraint("Equal", 16, 17),
    Sketcher.Constraint("Equal", 17, 18),
    Sketcher.Constraint("Equal", 18, 19),
    Sketcher.Constraint("Horizontal", 0, 3, 1, 3),
    Sketcher.Constraint("Horizontal", 1, 3, 2, 3),
    Sketcher.Constraint("Horizontal", 2, 3, 3, 3),
    Sketcher.Constraint("Horizontal", 3, 3, 4, 3),
    Sketcher.Constraint("Horizontal", 4, 3, 5, 3),
    Sketcher.Constraint("Horizontal", 5, 3, 6, 3),
    Sketcher.Constraint("Horizontal", 6, 3, 7, 3),
    Sketcher.Constraint("Horizontal", 7, 3, 8, 3),
    Sketcher.Constraint("Horizontal", 8, 3, 9, 3),
    Sketcher.Constraint("Horizontal", 10, 3, 11, 3),
    Sketcher.Constraint("Horizontal", 11, 3, 12, 3),
    Sketcher.Constraint("Horizontal", 12, 3, 13, 3),
    Sketcher.Constraint("Horizontal", 13, 3, 14, 3),
    Sketcher.Constraint("Horizontal", 14, 3, 15, 3),
    Sketcher.Constraint("Horizontal", 15, 3, 16, 3),
    Sketcher.Constraint("Horizontal", 16, 3, 17, 3),
    Sketcher.Constraint("Horizontal", 17, 3, 18, 3),
    Sketcher.Constraint("Horizontal", 18, 3, 19, 3),
    Sketcher.Constraint("Vertical", 5, 3, 10, 3),
    Sketcher.Constraint("Vertical", 0, 3, 11, 3),
    Sketcher.Constraint("Vertical", 3, 3, 12, 3),
    Sketcher.Constraint("Vertical", 1, 3, 13, 3),
    Sketcher.Constraint("Vertical", 6, 3, 14, 3),
    Sketcher.Constraint("Vertical", 8, 3, 15, 3),
    Sketcher.Constraint("Vertical", 4, 3, 16, 3),
    Sketcher.Constraint("Vertical", 2, 3, 17, 3),
    Sketcher.Constraint("Vertical", 7, 3, 18, 3),
    Sketcher.Constraint("Vertical", 9, 3, 19, 3),
    Sketcher.Constraint("Diameter", 0, 3.0),
    Sketcher.Constraint("DistanceX", 2, 3, 0, 3, 4.0),
    Sketcher.Constraint("DistanceX", 3, 3, 1, 3, 4.0),
    Sketcher.Constraint("DistanceX", 4, 3, 2, 3, 4.0),
    Sketcher.Constraint("DistanceX", 1, 3, 5, 3, 4.0),
    Sketcher.Constraint("DistanceX", 5, 3, 6, 3, 4.0),
    Sketcher.Constraint("DistanceX", 0, 3, 7, 3, 4.0),
    Sketcher.Constraint("DistanceX", 6, 3, 8, 3, 4.0),
    Sketcher.Constraint("DistanceX", 7, 3, 9, 3, 4.0),
    Sketcher.Constraint("DistanceY", 5, 3, 10, 3, 4.0),
    Sketcher.Constraint("DistanceX", 1, 3, 0, 3, 63.26),
    Sketcher.Constraint("DistanceX", -1, 1, 0, 3, 146.895669),
    Sketcher.Constraint("DistanceY", 0, 3, -1, 1, 8.486588),
])
sketch5.setExpression("Constraints[47]", "Params.sketch5_diameter")
pocket4 = doc.addObject("PartDesign::Pocket", "Pocket003")
body.addObject(pocket4)
pocket4.Profile = sketch5
pocket4.setExpression("Length", "Params.pocket4_length")
pocket4.Reversed = True

doc.recompute()
